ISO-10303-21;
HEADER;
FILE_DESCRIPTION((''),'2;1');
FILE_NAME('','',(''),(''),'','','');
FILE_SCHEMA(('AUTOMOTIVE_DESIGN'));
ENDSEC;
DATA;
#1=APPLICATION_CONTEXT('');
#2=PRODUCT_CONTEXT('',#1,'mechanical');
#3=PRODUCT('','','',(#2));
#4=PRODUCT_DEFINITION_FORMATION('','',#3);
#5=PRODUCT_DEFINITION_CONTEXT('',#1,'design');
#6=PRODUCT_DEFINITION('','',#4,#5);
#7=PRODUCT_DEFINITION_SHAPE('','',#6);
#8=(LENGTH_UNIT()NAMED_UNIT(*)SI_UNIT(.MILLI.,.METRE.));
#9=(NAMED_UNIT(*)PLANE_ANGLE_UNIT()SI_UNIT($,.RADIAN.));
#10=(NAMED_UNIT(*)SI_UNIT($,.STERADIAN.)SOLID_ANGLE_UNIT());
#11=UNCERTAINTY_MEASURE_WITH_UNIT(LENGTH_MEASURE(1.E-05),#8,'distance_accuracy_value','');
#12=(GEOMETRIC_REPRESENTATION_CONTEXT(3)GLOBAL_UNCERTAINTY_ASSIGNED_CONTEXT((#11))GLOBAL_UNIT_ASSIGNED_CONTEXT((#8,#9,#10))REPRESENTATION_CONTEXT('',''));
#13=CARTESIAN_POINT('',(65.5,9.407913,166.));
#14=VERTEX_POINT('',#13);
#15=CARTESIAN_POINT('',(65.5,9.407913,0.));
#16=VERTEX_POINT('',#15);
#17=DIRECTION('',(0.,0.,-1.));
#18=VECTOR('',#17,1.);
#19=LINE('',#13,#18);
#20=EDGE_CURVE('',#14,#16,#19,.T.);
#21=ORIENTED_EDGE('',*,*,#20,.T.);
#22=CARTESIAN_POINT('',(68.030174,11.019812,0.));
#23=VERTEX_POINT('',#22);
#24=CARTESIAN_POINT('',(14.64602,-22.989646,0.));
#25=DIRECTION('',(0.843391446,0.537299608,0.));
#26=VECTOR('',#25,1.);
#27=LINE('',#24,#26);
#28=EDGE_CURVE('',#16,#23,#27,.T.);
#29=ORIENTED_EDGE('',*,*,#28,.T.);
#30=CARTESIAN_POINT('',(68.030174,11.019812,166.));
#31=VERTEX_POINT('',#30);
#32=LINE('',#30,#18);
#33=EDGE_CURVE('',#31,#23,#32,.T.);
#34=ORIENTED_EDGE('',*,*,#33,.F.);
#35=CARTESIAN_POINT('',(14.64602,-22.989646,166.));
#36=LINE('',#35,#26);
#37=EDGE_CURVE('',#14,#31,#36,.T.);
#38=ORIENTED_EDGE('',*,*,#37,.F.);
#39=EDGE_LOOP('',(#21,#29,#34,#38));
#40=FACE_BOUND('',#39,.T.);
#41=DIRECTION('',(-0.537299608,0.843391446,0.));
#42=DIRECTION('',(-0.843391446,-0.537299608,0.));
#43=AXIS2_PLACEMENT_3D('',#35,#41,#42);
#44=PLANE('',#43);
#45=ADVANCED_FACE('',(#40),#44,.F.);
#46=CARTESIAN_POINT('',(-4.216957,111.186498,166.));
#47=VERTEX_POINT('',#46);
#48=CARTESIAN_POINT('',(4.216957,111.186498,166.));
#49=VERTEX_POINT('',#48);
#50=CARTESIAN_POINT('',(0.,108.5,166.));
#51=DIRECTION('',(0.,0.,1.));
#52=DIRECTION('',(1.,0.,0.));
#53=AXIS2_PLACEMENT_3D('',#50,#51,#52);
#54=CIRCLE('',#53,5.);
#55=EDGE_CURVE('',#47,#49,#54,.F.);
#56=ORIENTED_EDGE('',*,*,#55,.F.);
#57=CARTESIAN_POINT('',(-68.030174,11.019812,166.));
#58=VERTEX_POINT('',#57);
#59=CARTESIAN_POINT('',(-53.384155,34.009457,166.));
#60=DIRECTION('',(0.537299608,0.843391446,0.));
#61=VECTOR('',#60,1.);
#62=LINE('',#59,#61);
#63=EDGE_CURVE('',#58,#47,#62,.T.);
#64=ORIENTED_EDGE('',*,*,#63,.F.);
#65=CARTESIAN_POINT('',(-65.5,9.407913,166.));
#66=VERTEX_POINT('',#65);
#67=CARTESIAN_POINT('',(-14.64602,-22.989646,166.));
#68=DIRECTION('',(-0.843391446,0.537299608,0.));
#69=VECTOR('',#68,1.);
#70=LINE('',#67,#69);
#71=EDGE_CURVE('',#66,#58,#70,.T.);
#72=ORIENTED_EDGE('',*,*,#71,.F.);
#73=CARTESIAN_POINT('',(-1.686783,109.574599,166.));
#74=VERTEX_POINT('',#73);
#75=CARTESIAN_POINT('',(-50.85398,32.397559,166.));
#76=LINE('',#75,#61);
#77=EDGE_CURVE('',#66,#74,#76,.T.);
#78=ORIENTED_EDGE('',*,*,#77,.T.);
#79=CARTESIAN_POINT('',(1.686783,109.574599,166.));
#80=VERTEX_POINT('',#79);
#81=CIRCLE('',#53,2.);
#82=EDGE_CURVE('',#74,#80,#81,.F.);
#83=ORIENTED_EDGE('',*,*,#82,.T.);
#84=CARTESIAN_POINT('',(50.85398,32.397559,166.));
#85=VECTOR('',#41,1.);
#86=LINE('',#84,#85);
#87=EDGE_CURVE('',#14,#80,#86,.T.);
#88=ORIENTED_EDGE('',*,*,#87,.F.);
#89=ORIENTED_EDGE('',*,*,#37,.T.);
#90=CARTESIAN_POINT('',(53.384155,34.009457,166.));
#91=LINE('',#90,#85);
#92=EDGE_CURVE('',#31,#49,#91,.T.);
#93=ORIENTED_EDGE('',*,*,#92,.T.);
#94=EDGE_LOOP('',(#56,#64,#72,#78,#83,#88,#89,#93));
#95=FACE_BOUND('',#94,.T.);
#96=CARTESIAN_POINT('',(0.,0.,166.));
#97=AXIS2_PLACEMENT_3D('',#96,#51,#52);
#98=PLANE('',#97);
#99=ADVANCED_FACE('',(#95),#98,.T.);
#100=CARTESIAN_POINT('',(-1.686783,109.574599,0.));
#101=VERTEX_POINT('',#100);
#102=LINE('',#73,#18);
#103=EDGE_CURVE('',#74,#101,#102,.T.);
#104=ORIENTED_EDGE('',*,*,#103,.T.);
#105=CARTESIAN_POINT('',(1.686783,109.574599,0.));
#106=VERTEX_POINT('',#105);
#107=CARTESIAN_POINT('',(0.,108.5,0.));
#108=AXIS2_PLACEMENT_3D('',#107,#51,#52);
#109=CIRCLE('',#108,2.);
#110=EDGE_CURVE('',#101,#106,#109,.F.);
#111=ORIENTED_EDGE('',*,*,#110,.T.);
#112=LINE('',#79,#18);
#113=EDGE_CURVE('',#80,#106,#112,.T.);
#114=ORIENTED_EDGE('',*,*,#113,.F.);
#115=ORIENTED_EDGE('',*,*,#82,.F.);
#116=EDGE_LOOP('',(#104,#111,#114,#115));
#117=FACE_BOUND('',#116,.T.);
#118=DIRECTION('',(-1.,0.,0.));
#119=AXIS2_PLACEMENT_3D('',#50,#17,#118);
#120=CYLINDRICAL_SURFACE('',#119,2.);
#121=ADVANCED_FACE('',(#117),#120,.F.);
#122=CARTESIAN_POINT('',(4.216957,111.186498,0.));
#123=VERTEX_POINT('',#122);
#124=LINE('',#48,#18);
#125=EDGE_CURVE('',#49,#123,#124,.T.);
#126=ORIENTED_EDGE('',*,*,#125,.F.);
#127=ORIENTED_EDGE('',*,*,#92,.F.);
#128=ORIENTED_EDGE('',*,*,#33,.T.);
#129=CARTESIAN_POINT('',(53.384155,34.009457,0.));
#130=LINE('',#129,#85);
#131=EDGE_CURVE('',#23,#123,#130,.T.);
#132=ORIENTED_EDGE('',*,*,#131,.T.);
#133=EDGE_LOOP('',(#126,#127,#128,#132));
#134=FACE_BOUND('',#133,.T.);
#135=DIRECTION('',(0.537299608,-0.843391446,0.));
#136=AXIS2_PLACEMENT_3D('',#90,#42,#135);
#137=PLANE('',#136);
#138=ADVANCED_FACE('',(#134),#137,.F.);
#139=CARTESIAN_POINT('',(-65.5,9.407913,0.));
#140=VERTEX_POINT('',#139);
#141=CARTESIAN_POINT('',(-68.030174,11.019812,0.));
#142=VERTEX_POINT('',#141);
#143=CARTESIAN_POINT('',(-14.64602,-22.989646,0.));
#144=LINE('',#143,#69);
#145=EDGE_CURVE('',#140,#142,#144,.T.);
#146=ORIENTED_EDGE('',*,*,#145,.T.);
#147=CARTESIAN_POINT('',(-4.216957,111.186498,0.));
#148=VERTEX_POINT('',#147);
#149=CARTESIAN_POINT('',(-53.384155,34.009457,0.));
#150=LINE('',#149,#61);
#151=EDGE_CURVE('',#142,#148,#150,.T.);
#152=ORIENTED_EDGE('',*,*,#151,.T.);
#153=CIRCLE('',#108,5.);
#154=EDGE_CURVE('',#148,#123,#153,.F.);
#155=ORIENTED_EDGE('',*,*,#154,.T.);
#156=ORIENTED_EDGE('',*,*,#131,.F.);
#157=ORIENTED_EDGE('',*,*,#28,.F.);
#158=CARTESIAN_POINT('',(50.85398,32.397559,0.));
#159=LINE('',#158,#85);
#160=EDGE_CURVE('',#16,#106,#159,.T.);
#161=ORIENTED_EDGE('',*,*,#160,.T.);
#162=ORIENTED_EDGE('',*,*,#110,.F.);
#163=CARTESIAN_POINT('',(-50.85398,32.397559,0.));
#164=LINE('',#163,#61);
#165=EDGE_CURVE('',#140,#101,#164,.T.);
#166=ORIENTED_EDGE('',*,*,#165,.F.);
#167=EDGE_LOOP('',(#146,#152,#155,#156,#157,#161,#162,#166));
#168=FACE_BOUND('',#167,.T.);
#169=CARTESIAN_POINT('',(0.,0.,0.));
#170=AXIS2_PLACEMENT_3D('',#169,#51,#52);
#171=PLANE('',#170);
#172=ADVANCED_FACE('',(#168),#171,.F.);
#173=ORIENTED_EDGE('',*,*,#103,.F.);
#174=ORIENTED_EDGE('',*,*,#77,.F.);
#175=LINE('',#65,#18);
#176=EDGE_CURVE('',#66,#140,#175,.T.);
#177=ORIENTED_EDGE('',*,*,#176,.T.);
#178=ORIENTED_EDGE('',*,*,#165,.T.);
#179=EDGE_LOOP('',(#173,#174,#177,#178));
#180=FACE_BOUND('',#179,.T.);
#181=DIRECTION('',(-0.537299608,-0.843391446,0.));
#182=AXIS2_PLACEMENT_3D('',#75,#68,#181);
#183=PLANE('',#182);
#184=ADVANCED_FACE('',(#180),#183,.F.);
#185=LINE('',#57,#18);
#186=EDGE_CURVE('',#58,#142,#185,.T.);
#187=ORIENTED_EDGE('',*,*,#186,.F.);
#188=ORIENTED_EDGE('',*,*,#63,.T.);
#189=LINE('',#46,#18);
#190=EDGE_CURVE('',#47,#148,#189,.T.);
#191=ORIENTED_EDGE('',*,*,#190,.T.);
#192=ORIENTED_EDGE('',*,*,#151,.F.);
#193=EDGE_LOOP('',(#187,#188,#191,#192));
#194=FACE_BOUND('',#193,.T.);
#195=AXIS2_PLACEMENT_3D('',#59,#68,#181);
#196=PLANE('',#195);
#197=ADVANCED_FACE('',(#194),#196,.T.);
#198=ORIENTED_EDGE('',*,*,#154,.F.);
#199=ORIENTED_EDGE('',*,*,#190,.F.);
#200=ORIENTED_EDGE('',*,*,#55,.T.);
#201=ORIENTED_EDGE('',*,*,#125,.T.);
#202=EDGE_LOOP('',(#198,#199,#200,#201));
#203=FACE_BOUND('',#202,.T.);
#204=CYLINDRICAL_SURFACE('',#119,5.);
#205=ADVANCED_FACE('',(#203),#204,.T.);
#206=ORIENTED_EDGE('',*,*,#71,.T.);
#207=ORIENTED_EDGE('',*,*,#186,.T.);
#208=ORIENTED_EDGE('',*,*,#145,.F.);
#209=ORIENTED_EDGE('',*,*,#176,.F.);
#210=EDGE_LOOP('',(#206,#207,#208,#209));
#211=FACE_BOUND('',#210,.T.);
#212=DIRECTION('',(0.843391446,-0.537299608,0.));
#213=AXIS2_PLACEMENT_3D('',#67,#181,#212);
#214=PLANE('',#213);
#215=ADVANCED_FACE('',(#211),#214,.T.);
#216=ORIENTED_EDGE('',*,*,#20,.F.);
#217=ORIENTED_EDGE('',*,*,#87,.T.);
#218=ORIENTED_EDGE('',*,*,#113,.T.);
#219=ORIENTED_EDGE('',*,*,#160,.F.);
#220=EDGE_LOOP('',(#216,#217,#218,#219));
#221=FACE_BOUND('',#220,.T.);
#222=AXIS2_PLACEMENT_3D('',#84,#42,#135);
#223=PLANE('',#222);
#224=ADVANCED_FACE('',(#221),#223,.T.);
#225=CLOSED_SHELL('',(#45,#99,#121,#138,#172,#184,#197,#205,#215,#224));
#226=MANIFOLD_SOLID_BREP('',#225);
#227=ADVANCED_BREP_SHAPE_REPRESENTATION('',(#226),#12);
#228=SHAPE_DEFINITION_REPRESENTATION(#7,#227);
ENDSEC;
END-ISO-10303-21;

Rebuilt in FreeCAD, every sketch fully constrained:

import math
import FreeCAD as App
import Part
import Sketcher

V = App.Vector
Q = App.Units.Quantity

doc = App.newDocument("Part")
body = doc.addObject("PartDesign::Body", "Body")

# Sketch on XY plane
sketch1 = body.newObject("Sketcher::SketchObject", "Sketch")
sketch1.AttachmentSupport = (doc.getObject("XY_Plane"), [""])
sketch1.MapMode = "FlatFace"
sketch1.addGeometry(Part.ArcOfCircle(Part.Circle(V(0, 108.5, 0), V(0, 0, 1), 5), math.radians(33), math.radians(147)), False)
sketch1.addGeometry(Part.LineSegment(V(-4.2, 111.2, 0), V(-68, 11, 0)), False)
sketch1.addGeometry(Part.LineSegment(V(-68, 11, 0), V(-65.5, 9.4, 0)), False)
sketch1.addGeometry(Part.LineSegment(V(-65.5, 9.4, 0), V(-1.7, 109.6, 0)), False)
sketch1.addGeometry(Part.ArcOfCircle(Part.Circle(V(0, 108.5, 0), V(0, 0, 1), 2), math.radians(33), math.radians(147)), False)
sketch1.addGeometry(Part.LineSegment(V(1.7, 109.6, 0), V(65.5, 9.4, 0)), False)
sketch1.addGeometry(Part.LineSegment(V(65.5, 9.4, 0), V(68, 11, 0)), False)
sketch1.addGeometry(Part.LineSegment(V(68, 11, 0), V(4.2, 111.2, 0)), False)
sketch1.addConstraint(Sketcher.Constraint("Tangent", 0, 2, 1, 1))
sketch1.addConstraint(Sketcher.Constraint("Coincident", 1, 2, 2, 1))
sketch1.addConstraint(Sketcher.Constraint("Coincident", 2, 2, 3, 1))
sketch1.addConstraint(Sketcher.Constraint("Tangent", 3, 2, 4, 2))
sketch1.addConstraint(Sketcher.Constraint("Tangent", 4, 1, 5, 1))
sketch1.addConstraint(Sketcher.Constraint("Coincident", 5, 2, 6, 1))
sketch1.addConstraint(Sketcher.Constraint("Coincident", 6, 2, 7, 1))
sketch1.addConstraint(Sketcher.Constraint("Tangent", 7, 2, 0, 1))
sketch1.addConstraint(Sketcher.Constraint("Coincident", 4, 3, 0, 3))
sketch1.addConstraint(Sketcher.Constraint("Symmetric", 3, 2, 4, 1, -2))
sketch1.addConstraint(Sketcher.Constraint("Symmetric", 1, 2, 6, 2, -2))
sketch1.addConstraint(Sketcher.Constraint("Perpendicular", 1, 2))
sketch1.addConstraint(Sketcher.Constraint("Perpendicular", 2, 3))
sketch1.addConstraint(Sketcher.Constraint("Perpendicular", 5, 6))
sketch1.addConstraint(Sketcher.Constraint("Radius", 0, Q("5 mm")))
sketch1.addConstraint(Sketcher.Constraint("Radius", 4, Q("2 mm")))
sketch1.addConstraint(Sketcher.Constraint("Angle", 1, Q("-122.5 deg")))
sketch1.addConstraint(Sketcher.Constraint("DistanceY", -1, 1, 0, 3, Q("108.5 mm")))
sketch1.addConstraint(Sketcher.Constraint("DistanceX", 2, 2, -1, 1, Q("65.5 mm")))
pad1 = body.newObject("PartDesign::Pad", "Pad")
pad1.Profile = sketch1
pad1.Length = 166

doc.recompute()
